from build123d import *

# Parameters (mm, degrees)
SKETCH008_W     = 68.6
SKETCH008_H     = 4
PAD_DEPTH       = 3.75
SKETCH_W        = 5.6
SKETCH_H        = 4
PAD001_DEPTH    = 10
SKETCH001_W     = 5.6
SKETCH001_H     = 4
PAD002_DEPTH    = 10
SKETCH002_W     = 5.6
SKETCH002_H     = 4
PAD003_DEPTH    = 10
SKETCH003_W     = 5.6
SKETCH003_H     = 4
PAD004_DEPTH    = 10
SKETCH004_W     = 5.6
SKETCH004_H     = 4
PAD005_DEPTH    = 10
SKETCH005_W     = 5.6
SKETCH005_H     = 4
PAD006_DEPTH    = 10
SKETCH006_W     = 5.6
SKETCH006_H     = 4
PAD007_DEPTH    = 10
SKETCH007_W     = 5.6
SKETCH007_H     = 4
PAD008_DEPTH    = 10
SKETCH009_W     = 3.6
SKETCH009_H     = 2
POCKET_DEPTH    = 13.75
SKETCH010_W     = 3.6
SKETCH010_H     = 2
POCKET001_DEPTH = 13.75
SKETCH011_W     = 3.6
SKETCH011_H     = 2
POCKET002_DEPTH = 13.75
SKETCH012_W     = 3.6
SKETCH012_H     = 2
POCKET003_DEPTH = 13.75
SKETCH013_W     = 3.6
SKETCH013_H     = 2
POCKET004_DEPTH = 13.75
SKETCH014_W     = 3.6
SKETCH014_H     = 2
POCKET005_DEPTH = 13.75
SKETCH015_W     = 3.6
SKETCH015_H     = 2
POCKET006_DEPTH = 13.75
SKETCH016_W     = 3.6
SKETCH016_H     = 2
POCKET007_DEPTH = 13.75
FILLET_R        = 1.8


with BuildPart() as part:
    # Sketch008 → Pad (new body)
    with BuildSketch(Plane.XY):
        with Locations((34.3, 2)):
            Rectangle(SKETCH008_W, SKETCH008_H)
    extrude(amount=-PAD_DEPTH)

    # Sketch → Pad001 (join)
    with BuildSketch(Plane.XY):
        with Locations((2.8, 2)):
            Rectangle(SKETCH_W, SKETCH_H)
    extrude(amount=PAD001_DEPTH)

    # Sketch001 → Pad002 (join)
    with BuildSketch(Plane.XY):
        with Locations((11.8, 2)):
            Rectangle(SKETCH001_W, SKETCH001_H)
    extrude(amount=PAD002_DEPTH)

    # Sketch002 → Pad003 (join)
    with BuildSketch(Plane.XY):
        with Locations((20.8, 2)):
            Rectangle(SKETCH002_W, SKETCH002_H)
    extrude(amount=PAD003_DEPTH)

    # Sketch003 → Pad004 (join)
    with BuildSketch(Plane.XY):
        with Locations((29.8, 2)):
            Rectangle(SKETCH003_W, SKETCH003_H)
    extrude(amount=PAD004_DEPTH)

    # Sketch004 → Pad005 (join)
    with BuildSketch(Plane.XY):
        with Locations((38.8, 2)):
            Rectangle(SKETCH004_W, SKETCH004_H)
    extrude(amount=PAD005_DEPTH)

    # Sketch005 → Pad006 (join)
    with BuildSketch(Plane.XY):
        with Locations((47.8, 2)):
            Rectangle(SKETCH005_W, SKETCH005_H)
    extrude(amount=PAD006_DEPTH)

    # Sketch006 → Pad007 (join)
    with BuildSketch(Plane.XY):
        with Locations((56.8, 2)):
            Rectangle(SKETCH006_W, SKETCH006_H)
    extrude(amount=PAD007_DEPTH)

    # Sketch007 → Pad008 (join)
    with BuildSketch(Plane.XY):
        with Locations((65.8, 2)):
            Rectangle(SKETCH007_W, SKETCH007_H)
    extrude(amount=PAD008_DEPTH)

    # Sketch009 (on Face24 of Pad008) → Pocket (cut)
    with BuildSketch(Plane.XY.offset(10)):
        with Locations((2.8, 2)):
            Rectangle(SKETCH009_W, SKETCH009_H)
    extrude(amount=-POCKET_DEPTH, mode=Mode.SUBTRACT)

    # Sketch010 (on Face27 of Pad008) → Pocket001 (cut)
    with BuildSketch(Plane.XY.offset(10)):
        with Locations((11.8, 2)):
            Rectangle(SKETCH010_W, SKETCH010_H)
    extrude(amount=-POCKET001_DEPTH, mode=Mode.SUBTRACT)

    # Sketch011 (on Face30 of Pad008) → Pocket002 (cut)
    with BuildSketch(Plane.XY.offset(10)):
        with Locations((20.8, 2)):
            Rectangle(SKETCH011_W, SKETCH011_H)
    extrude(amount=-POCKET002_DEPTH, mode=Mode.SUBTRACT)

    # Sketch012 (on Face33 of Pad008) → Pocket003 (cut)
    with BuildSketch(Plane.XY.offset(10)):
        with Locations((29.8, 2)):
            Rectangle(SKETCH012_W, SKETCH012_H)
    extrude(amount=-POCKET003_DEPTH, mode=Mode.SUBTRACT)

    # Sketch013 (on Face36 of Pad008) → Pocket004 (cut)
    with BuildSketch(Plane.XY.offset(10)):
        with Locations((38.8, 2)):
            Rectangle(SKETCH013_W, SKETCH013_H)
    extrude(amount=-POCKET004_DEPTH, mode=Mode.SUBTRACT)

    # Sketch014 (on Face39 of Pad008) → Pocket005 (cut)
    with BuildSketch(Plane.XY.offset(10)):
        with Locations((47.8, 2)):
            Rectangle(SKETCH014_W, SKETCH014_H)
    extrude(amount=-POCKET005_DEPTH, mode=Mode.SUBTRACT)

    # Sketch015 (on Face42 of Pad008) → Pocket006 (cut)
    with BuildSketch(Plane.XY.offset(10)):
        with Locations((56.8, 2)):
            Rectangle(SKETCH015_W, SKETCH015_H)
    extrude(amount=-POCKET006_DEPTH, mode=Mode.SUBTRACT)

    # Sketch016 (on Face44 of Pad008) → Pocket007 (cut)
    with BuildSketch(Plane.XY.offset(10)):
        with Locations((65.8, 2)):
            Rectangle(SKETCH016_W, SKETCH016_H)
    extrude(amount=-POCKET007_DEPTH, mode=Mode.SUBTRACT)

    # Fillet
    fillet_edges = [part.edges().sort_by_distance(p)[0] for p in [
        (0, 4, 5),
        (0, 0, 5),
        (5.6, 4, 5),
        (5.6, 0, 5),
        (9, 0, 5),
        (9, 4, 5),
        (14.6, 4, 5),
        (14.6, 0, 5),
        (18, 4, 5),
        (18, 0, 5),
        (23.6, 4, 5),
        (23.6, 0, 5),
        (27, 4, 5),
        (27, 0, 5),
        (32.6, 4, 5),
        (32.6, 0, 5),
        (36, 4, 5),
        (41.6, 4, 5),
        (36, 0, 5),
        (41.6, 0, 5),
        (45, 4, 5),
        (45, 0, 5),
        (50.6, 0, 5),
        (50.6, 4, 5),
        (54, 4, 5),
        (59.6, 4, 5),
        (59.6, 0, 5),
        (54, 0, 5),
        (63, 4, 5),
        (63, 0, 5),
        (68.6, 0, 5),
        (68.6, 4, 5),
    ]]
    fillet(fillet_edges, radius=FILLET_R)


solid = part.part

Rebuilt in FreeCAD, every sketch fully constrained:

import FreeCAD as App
import Part
import Sketcher


def edges_at(feature, points):
    """Names of the edges that pass closest to the given points."""
    edges = feature.Shape.Edges
    near = lambda p: min(range(len(edges)), key=lambda i: edges[i].distToShape(Part.Vertex(*p))[0])
    return sorted({f"Edge{near(p) + 1}" for p in points})


def add_polygon(sketch, points):
    """Adds a closed chain of lines whose ends are joined by coincident constraints."""
    first, n = sketch.GeometryCount, len(points)
    for a, b in zip(points, points[1:] + points[:1]):
        sketch.addGeometry(Part.LineSegment(App.Vector(*a, 0), App.Vector(*b, 0)), False)
    for i in range(n):
        sketch.addConstraint(Sketcher.Constraint("Coincident", first + i, 2, first + (i + 1) % n, 1))

doc = App.newDocument("Part")
body = doc.addObject("PartDesign::Body", "Body")

# Sketch on XY plane
sketch1 = body.newObject("Sketcher::SketchObject", "Sketch")
sketch1.AttachmentSupport = (doc.getObject("XY_Plane"), [""])
sketch1.MapMode = "FlatFace"
add_polygon(sketch1, [(0, 4), (0, 0), (68.6, 0), (68.6, 4)])  # lines 0-3
sketch1.addConstraint(Sketcher.Constraint("Vertical", 0))
sketch1.addConstraint(Sketcher.Constraint("Horizontal", 1))
sketch1.addConstraint(Sketcher.Constraint("Vertical", 2))
sketch1.addConstraint(Sketcher.Constraint("Horizontal", 3))
sketch1.addConstraint(Sketcher.Constraint("Coincident", 0, 2, -1, 1))
sketch1.addConstraint(Sketcher.Constraint("DistanceY", 0, 2, 0, 1, 4.0))
sketch1.addConstraint(Sketcher.Constraint("DistanceX", 1, 1, 1, 2, 68.6))
pad1 = body.newObject("PartDesign::Pad", "Pad")
pad1.Profile = sketch1
pad1.Length = 3.75
pad1.Reversed = True

# Sketch on XY plane
sketch2 = body.newObject("Sketcher::SketchObject", "Sketch001")
sketch2.AttachmentSupport = (doc.getObject("XY_Plane"), [""])
sketch2.MapMode = "FlatFace"
add_polygon(sketch2, [(0, 4), (0, 0), (5.6, 0), (5.6, 4)])  # lines 0-3
sketch2.addConstraint(Sketcher.Constraint("Vertical", 0))
sketch2.addConstraint(Sketcher.Constraint("Horizontal", 1))
sketch2.addConstraint(Sketcher.Constraint("Vertical", 2))
sketch2.addConstraint(Sketcher.Constraint("Horizontal", 3))
sketch2.addConstraint(Sketcher.Constraint("Coincident", 0, 2, -1, 1))
sketch2.addConstraint(Sketcher.Constraint("DistanceY", 0, 2, 0, 1, 4.0))
sketch2.addConstraint(Sketcher.Constraint("DistanceX", 1, 1, 1, 2, 5.6))
pad2 = body.newObject("PartDesign::Pad", "Pad001")
pad2.Profile = sketch2
pad2.Length = 10

# Sketch on XY plane
sketch3 = body.newObject("Sketcher::SketchObject", "Sketch002")
sketch3.AttachmentSupport = (doc.getObject("XY_Plane"), [""])
sketch3.MapMode = "FlatFace"
add_polygon(sketch3, [(9, 4), (9, 0), (14.6, 0), (14.6, 4)])  # lines 0-3
sketch3.addConstraint(Sketcher.Constraint("Vertical", 0))
sketch3.addConstraint(Sketcher.Constraint("Horizontal", 1))
sketch3.addConstraint(Sketcher.Constraint("Vertical", 2))
sketch3.addConstraint(Sketcher.Constraint("Horizontal", 3))
sketch3.addConstraint(Sketcher.Constraint("PointOnObject", 0, 2, -1))
sketch3.addConstraint(Sketcher.Constraint("DistanceY", 0, 2, 0, 1, 4.0))
sketch3.addConstraint(Sketcher.Constraint("DistanceX", 1, 1, 1, 2, 5.6))
sketch3.addConstraint(Sketcher.Constraint("DistanceX", -1, 1, 0, 2, 9.0))
pad3 = body.newObject("PartDesign::Pad", "Pad002")
pad3.Profile = sketch3
pad3.Length = 10

# Sketch on XY plane
sketch4 = body.newObject("Sketcher::SketchObject", "Sketch003")
sketch4.AttachmentSupport = (doc.getObject("XY_Plane"), [""])
sketch4.MapMode = "FlatFace"
add_polygon(sketch4, [(18, 4), (18, 0), (23.6, 0), (23.6, 4)])  # lines 0-3
sketch4.addConstraint(Sketcher.Constraint("Vertical", 0))
sketch4.addConstraint(Sketcher.Constraint("Horizontal", 1))
sketch4.addConstraint(Sketcher.Constraint("Vertical", 2))
sketch4.addConstraint(Sketcher.Constraint("Horizontal", 3))
sketch4.addConstraint(Sketcher.Constraint("PointOnObject", 0, 2, -1))
sketch4.addConstraint(Sketcher.Constraint("DistanceY", 0, 2, 0, 1, 4.0))
sketch4.addConstraint(Sketcher.Constraint("DistanceX", 1, 1, 1, 2, 5.6))
sketch4.addConstraint(Sketcher.Constraint("DistanceX", -1, 1, 0, 2, 18.0))
pad4 = body.newObject("PartDesign::Pad", "Pad003")
pad4.Profile = sketch4
pad4.Length = 10

# Sketch on XY plane
sketch5 = body.newObject("Sketcher::SketchObject", "Sketch004")
sketch5.AttachmentSupport = (doc.getObject("XY_Plane"), [""])
sketch5.MapMode = "FlatFace"
add_polygon(sketch5, [(27, 4), (27, 0), (32.6, 0), (32.6, 4)])  # lines 0-3
sketch5.addConstraint(Sketcher.Constraint("Vertical", 0))
sketch5.addConstraint(Sketcher.Constraint("Horizontal", 1))
sketch5.addConstraint(Sketcher.Constraint("Vertical", 2))
sketch5.addConstraint(Sketcher.Constraint("Horizontal", 3))
sketch5.addConstraint(Sketcher.Constraint("PointOnObject", 0, 2, -1))
sketch5.addConstraint(Sketcher.Constraint("DistanceY", 0, 2, 0, 1, 4.0))
sketch5.addConstraint(Sketcher.Constraint("DistanceX", 1, 1, 1, 2, 5.6))
sketch5.addConstraint(Sketcher.Constraint("DistanceX", -1, 1, 0, 2, 27.0))
pad5 = body.newObject("PartDesign::Pad", "Pad004")
pad5.Profile = sketch5
pad5.Length = 10

# Sketch on XY plane
sketch6 = body.newObject("Sketcher::SketchObject", "Sketch005")
sketch6.AttachmentSupport = (doc.getObject("XY_Plane"), [""])
sketch6.MapMode = "FlatFace"
add_polygon(sketch6, [(36, 4), (36, 0), (41.6, 0), (41.6, 4)])  # lines 0-3
sketch6.addConstraint(Sketcher.Constraint("Vertical", 0))
sketch6.addConstraint(Sketcher.Constraint("Horizontal", 1))
sketch6.addConstraint(Sketcher.Constraint("Vertical", 2))
sketch6.addConstraint(Sketcher.Constraint("Horizontal", 3))
sketch6.addConstraint(Sketcher.Constraint("PointOnObject", 0, 2, -1))
sketch6.addConstraint(Sketcher.Constraint("DistanceY", 0, 2, 0, 1, 4.0))
sketch6.addConstraint(Sketcher.Constraint("DistanceX", 1, 1, 1, 2, 5.6))
sketch6.addConstraint(Sketcher.Constraint("DistanceX", -1, 1, 0, 2, 36.0))
pad6 = body.newObject("PartDesign::Pad", "Pad005")
pad6.Profile = sketch6
pad6.Length = 10

# Sketch on XY plane
sketch7 = body.newObject("Sketcher::SketchObject", "Sketch006")
sketch7.AttachmentSupport = (doc.getObject("XY_Plane"), [""])
sketch7.MapMode = "FlatFace"
add_polygon(sketch7, [(45, 4), (45, 0), (50.6, 0), (50.6, 4)])  # lines 0-3
sketch7.addConstraint(Sketcher.Constraint("Vertical", 0))
sketch7.addConstraint(Sketcher.Constraint("Horizontal", 1))
sketch7.addConstraint(Sketcher.Constraint("Vertical", 2))
sketch7.addConstraint(Sketcher.Constraint("Horizontal", 3))
sketch7.addConstraint(Sketcher.Constraint("PointOnObject", 0, 2, -1))
sketch7.addConstraint(Sketcher.Constraint("DistanceY", 0, 2, 0, 1, 4.0))
sketch7.addConstraint(Sketcher.Constraint("DistanceX", 1, 1, 1, 2, 5.6))
sketch7.addConstraint(Sketcher.Constraint("DistanceX", -1, 1, 0, 2, 45.0))
pad7 = body.newObject("PartDesign::Pad", "Pad006")
pad7.Profile = sketch7
pad7.Length = 10

# Sketch on XY plane
sketch8 = body.newObject("Sketcher::SketchObject", "Sketch007")
sketch8.AttachmentSupport = (doc.getObject("XY_Plane"), [""])
sketch8.MapMode = "FlatFace"
add_polygon(sketch8, [(54, 4), (54, 0), (59.6, 0), (59.6, 4)])  # lines 0-3
sketch8.addConstraint(Sketcher.Constraint("Vertical", 0))
sketch8.addConstraint(Sketcher.Constraint("Horizontal", 1))
sketch8.addConstraint(Sketcher.Constraint("Vertical", 2))
sketch8.addConstraint(Sketcher.Constraint("Horizontal", 3))
sketch8.addConstraint(Sketcher.Constraint("PointOnObject", 0, 2, -1))
sketch8.addConstraint(Sketcher.Constraint("DistanceY", 0, 2, 0, 1, 4.0))
sketch8.addConstraint(Sketcher.Constraint("DistanceX", 1, 1, 1, 2, 5.6))
sketch8.addConstraint(Sketcher.Constraint("DistanceX", -1, 1, 0, 2, 54.0))
pad8 = body.newObject("PartDesign::Pad", "Pad007")
pad8.Profile = sketch8
pad8.Length = 10

# Sketch on XY plane
sketch9 = body.newObject("Sketcher::SketchObject", "Sketch008")
sketch9.AttachmentSupport = (doc.getObject("XY_Plane"), [""])
sketch9.MapMode = "FlatFace"
add_polygon(sketch9, [(63, 4), (63, 0), (68.6, 0), (68.6, 4)])  # lines 0-3
sketch9.addConstraint(Sketcher.Constraint("Vertical", 0))
sketch9.addConstraint(Sketcher.Constraint("Horizontal", 1))
sketch9.addConstraint(Sketcher.Constraint("Vertical", 2))
sketch9.addConstraint(Sketcher.Constraint("Horizontal", 3))
sketch9.addConstraint(Sketcher.Constraint("PointOnObject", 0, 2, -1))
sketch9.addConstraint(Sketcher.Constraint("DistanceY", 0, 2, 0, 1, 4.0))
sketch9.addConstraint(Sketcher.Constraint("DistanceX", 1, 1, 1, 2, 5.6))
sketch9.addConstraint(Sketcher.Constraint("DistanceX", -1, 1, 0, 2, 63.0))
pad9 = body.newObject("PartDesign::Pad", "Pad008")
pad9.Profile = sketch9
pad9.Length = 10

# Sketch on XY plane
sketch10 = body.newObject("Sketcher::SketchObject", "Sketch009")
sketch10.AttachmentSupport = (doc.getObject("XY_Plane"), [""])
sketch10.MapMode = "FlatFace"
sketch10.AttachmentOffset = App.Placement(App.Vector(0, 0, 10), App.Rotation())
add_polygon(sketch10, [(1, 3), (1, 1), (4.6, 1), (4.6, 3)])  # lines 0-3
sketch10.addConstraint(Sketcher.Constraint("Vertical", 0))
sketch10.addConstraint(Sketcher.Constraint("Horizontal", 1))
sketch10.addConstraint(Sketcher.Constraint("Vertical", 2))
sketch10.addConstraint(Sketcher.Constraint("Horizontal", 3))
sketch10.addConstraint(Sketcher.Constraint("DistanceY", 0, 2, 0, 1, 2.0))
sketch10.addConstraint(Sketcher.Constraint("DistanceX", 1, 1, 1, 2, 3.6))
sketch10.addConstraint(Sketcher.Constraint("DistanceX", -1, 1, 0, 2, 1.0))
sketch10.addConstraint(Sketcher.Constraint("DistanceY", -1, 1, 0, 2, 1.0))
pocket1 = body.newObject("PartDesign::Pocket", "Pocket")
pocket1.Profile = sketch10
pocket1.Length = 13.75

# Sketch on XY plane
sketch11 = body.newObject("Sketcher::SketchObject", "Sketch010")
sketch11.AttachmentSupport = (doc.getObject("XY_Plane"), [""])
sketch11.MapMode = "FlatFace"
sketch11.AttachmentOffset = App.Placement(App.Vector(0, 0, 10), App.Rotation())
add_polygon(sketch11, [(10, 3), (10, 1), (13.6, 1), (13.6, 3)])  # lines 0-3
sketch11.addConstraint(Sketcher.Constraint("Vertical", 0))
sketch11.addConstraint(Sketcher.Constraint("Horizontal", 1))
sketch11.addConstraint(Sketcher.Constraint("Vertical", 2))
sketch11.addConstraint(Sketcher.Constraint("Horizontal", 3))
sketch11.addConstraint(Sketcher.Constraint("DistanceY", 0, 2, 0, 1, 2.0))
sketch11.addConstraint(Sketcher.Constraint("DistanceX", 1, 1, 1, 2, 3.6))
sketch11.addConstraint(Sketcher.Constraint("DistanceX", -1, 1, 0, 2, 10.0))
sketch11.addConstraint(Sketcher.Constraint("DistanceY", -1, 1, 0, 2, 1.0))
pocket2 = body.newObject("PartDesign::Pocket", "Pocket001")
pocket2.Profile = sketch11
pocket2.Length = 13.75

# Sketch on XY plane
sketch12 = body.newObject("Sketcher::SketchObject", "Sketch011")
sketch12.AttachmentSupport = (doc.getObject("XY_Plane"), [""])
sketch12.MapMode = "FlatFace"
sketch12.AttachmentOffset = App.Placement(App.Vector(0, 0, 10), App.Rotation())
add_polygon(sketch12, [(19, 3), (19, 1), (22.6, 1), (22.6, 3)])  # lines 0-3
sketch12.addConstraint(Sketcher.Constraint("Vertical", 0))
sketch12.addConstraint(Sketcher.Constraint("Horizontal", 1))
sketch12.addConstraint(Sketcher.Constraint("Vertical", 2))
sketch12.addConstraint(Sketcher.Constraint("Horizontal", 3))
sketch12.addConstraint(Sketcher.Constraint("DistanceY", 0, 2, 0, 1, 2.0))
sketch12.addConstraint(Sketcher.Constraint("DistanceX", 1, 1, 1, 2, 3.6))
sketch12.addConstraint(Sketcher.Constraint("DistanceX", -1, 1, 0, 2, 19.0))
sketch12.addConstraint(Sketcher.Constraint("DistanceY", -1, 1, 0, 2, 1.0))
pocket3 = body.newObject("PartDesign::Pocket", "Pocket002")
pocket3.Profile = sketch12
pocket3.Length = 13.75

# Sketch on XY plane
sketch13 = body.newObject("Sketcher::SketchObject", "Sketch012")
sketch13.AttachmentSupport = (doc.getObject("XY_Plane"), [""])
sketch13.MapMode = "FlatFace"
sketch13.AttachmentOffset = App.Placement(App.Vector(0, 0, 10), App.Rotation())
add_polygon(sketch13, [(28, 3), (28, 1), (31.6, 1), (31.6, 3)])  # lines 0-3
sketch13.addConstraint(Sketcher.Constraint("Vertical", 0))
sketch13.addConstraint(Sketcher.Constraint("Horizontal", 1))
sketch13.addConstraint(Sketcher.Constraint("Vertical", 2))
sketch13.addConstraint(Sketcher.Constraint("Horizontal", 3))
sketch13.addConstraint(Sketcher.Constraint("DistanceY", 0, 2, 0, 1, 2.0))
sketch13.addConstraint(Sketcher.Constraint("DistanceX", 1, 1, 1, 2, 3.6))
sketch13.addConstraint(Sketcher.Constraint("DistanceX", -1, 1, 0, 2, 28.0))
sketch13.addConstraint(Sketcher.Constraint("DistanceY", -1, 1, 0, 2, 1.0))
pocket4 = body.newObject("PartDesign::Pocket", "Pocket003")
pocket4.Profile = sketch13
pocket4.Length = 13.75

# Sketch on XY plane
sketch14 = body.newObject("Sketcher::SketchObject", "Sketch013")
sketch14.AttachmentSupport = (doc.getObject("XY_Plane"), [""])
sketch14.MapMode = "FlatFace"
sketch14.AttachmentOffset = App.Placement(App.Vector(0, 0, 10), App.Rotation())
add_polygon(sketch14, [(37, 3), (37, 1), (40.6, 1), (40.6, 3)])  # lines 0-3
sketch14.addConstraint(Sketcher.Constraint("Vertical", 0))
sketch14.addConstraint(Sketcher.Constraint("Horizontal", 1))
sketch14.addConstraint(Sketcher.Constraint("Vertical", 2))
sketch14.addConstraint(Sketcher.Constraint("Horizontal", 3))
sketch14.addConstraint(Sketcher.Constraint("DistanceY", 0, 2, 0, 1, 2.0))
sketch14.addConstraint(Sketcher.Constraint("DistanceX", 1, 1, 1, 2, 3.6))
sketch14.addConstraint(Sketcher.Constraint("DistanceX", -1, 1, 0, 2, 37.0))
sketch14.addConstraint(Sketcher.Constraint("DistanceY", -1, 1, 0, 2, 1.0))
pocket5 = body.newObject("PartDesign::Pocket", "Pocket004")
pocket5.Profile = sketch14
pocket5.Length = 13.75

# Sketch on XY plane
sketch15 = body.newObject("Sketcher::SketchObject", "Sketch014")
sketch15.AttachmentSupport = (doc.getObject("XY_Plane"), [""])
sketch15.MapMode = "FlatFace"
sketch15.AttachmentOffset = App.Placement(App.Vector(0, 0, 10), App.Rotation())
add_polygon(sketch15, [(46, 3), (46, 1), (49.6, 1), (49.6, 3)])  # lines 0-3
sketch15.addConstraint(Sketcher.Constraint("Vertical", 0))
sketch15.addConstraint(Sketcher.Constraint("Horizontal", 1))
sketch15.addConstraint(Sketcher.Constraint("Vertical", 2))
sketch15.addConstraint(Sketcher.Constraint("Horizontal", 3))
sketch15.addConstraint(Sketcher.Constraint("DistanceY", 0, 2, 0, 1, 2.0))
sketch15.addConstraint(Sketcher.Constraint("DistanceX", 1, 1, 1, 2, 3.6))
sketch15.addConstraint(Sketcher.Constraint("DistanceX", -1, 1, 0, 2, 46.0))
sketch15.addConstraint(Sketcher.Constraint("DistanceY", -1, 1, 0, 2, 1.0))
pocket6 = body.newObject("PartDesign::Pocket", "Pocket005")
pocket6.Profile = sketch15
pocket6.Length = 13.75

# Sketch on XY plane
sketch16 = body.newObject("Sketcher::SketchObject", "Sketch015")
sketch16.AttachmentSupport = (doc.getObject("XY_Plane"), [""])
sketch16.MapMode = "FlatFace"
sketch16.AttachmentOffset = App.Placement(App.Vector(0, 0, 10), App.Rotation())
add_polygon(sketch16, [(55, 3), (55, 1), (58.6, 1), (58.6, 3)])  # lines 0-3
sketch16.addConstraint(Sketcher.Constraint("Vertical", 0))
sketch16.addConstraint(Sketcher.Constraint("Horizontal", 1))
sketch16.addConstraint(Sketcher.Constraint("Vertical", 2))
sketch16.addConstraint(Sketcher.Constraint("Horizontal", 3))
sketch16.addConstraint(Sketcher.Constraint("DistanceY", 0, 2, 0, 1, 2.0))
sketch16.addConstraint(Sketcher.Constraint("DistanceX", 1, 1, 1, 2, 3.6))
sketch16.addConstraint(Sketcher.Constraint("DistanceX", -1, 1, 0, 2, 55.0))
sketch16.addConstraint(Sketcher.Constraint("DistanceY", -1, 1, 0, 2, 1.0))
pocket7 = body.newObject("PartDesign::Pocket", "Pocket006")
pocket7.Profile = sketch16
pocket7.Length = 13.75

# Sketch on XY plane
sketch17 = body.newObject("Sketcher::SketchObject", "Sketch016")
sketch17.AttachmentSupport = (doc.getObject("XY_Plane"), [""])
sketch17.MapMode = "FlatFace"
sketch17.AttachmentOffset = App.Placement(App.Vector(0, 0, 10), App.Rotation())
add_polygon(sketch17, [(64, 3), (64, 1), (67.6, 1), (67.6, 3)])  # lines 0-3
sketch17.addConstraint(Sketcher.Constraint("Vertical", 0))
sketch17.addConstraint(Sketcher.Constraint("Horizontal", 1))
sketch17.addConstraint(Sketcher.Constraint("Vertical", 2))
sketch17.addConstraint(Sketcher.Constraint("Horizontal", 3))
sketch17.addConstraint(Sketcher.Constraint("DistanceY", 0, 2, 0, 1, 2.0))
sketch17.addConstraint(Sketcher.Constraint("DistanceX", 1, 1, 1, 2, 3.6))
sketch17.addConstraint(Sketcher.Constraint("DistanceX", -1, 1, 0, 2, 64.0))
sketch17.addConstraint(Sketcher.Constraint("DistanceY", -1, 1, 0, 2, 1.0))
pocket8 = body.newObject("PartDesign::Pocket", "Pocket007")
pocket8.Profile = sketch17
pocket8.Length = 13.75
doc.recompute()

fillet = body.newObject("PartDesign::Fillet", "Fillet")
fillet.Base = (pocket8, edges_at(pocket8, [
    (0, 4, 3.125),
    (0, 0, 3.125),
    (5.6, 4, 5),
    (5.6, 0, 5),
    (9, 0, 5),
    (9, 4, 5),
    (14.6, 4, 5),
    (14.6, 0, 5),
    (18, 4, 5),
    (18, 0, 5),
    (23.6, 4, 5),
    (23.6, 0, 5),
    (27, 4, 5),
    (27, 0, 5),
    (32.6, 4, 5),
    (32.6, 0, 5),
    (36, 4, 5),
    (41.6, 4, 5),
    (36, 0, 5),
    (41.6, 0, 5),
    (45, 4, 5),
    (45, 0, 5),
    (50.6, 0, 5),
    (50.6, 4, 5),
    (54, 4, 5),
    (59.6, 4, 5),
    (59.6, 0, 5),
    (54, 0, 5),
    (63, 4, 5),
    (63, 0, 5),
    (68.6, 0, 3.125),
    (68.6, 4, 3.125),
]))
fillet.Radius = 1.8

doc.recompute()
